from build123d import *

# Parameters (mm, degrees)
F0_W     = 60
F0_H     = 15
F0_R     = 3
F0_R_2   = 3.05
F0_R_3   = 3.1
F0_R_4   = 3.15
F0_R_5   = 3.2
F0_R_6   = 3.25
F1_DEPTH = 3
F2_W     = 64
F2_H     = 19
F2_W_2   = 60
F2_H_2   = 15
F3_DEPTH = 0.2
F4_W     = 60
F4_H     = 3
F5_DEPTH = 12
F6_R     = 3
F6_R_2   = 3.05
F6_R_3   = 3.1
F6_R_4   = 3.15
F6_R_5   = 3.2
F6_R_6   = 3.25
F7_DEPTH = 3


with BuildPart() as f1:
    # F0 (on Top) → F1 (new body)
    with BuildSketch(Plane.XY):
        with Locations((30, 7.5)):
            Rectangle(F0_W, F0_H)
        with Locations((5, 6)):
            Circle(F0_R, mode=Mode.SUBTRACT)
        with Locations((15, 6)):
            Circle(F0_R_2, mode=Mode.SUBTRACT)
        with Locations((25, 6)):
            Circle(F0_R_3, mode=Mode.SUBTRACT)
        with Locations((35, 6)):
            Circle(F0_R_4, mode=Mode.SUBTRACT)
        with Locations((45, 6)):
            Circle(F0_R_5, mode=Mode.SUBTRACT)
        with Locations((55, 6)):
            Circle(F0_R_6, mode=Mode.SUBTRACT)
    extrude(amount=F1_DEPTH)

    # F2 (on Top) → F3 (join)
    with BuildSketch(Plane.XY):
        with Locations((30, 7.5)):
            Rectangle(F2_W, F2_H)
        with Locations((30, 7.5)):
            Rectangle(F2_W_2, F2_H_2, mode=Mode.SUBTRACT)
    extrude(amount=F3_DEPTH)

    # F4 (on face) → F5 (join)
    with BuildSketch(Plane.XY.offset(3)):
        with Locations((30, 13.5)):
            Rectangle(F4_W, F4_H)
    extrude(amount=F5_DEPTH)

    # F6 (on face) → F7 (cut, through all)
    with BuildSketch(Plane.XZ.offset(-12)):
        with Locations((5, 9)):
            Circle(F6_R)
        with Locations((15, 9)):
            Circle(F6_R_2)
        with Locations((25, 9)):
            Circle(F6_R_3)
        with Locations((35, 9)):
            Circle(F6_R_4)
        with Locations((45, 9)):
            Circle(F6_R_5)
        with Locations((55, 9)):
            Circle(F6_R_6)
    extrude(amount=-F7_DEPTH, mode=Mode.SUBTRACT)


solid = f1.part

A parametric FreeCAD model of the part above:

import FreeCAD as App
import Part
import Sketcher

doc = App.newDocument("Part")
body = doc.addObject("PartDesign::Body", "Body")

sketch1 = body.newObject("Sketcher::SketchObject", "Sketch")
sketch1.AttachmentSupport = (doc.getObject("XY_Plane"), [""])
sketch1.MapMode = "FlatFace"
sketch1.addGeometry([
    Part.LineSegment(App.Vector(0, 15, 0), App.Vector(0, 0, 0)),
    Part.LineSegment(App.Vector(0, 0, 0), App.Vector(60, 0, 0)),
    Part.LineSegment(App.Vector(60, 0, 0), App.Vector(60, 15, 0)),
    Part.LineSegment(App.Vector(60, 15, 0), App.Vector(0, 15, 0)),
    Part.Circle(App.Vector(5, 6, 0), App.Vector(0, 0, 1), 3),
    Part.Circle(App.Vector(15, 6, 0), App.Vector(0, 0, 1), 3),
    Part.Circle(App.Vector(25, 6, 0), App.Vector(0, 0, 1), 3.1),
    Part.Circle(App.Vector(35, 6, 0), App.Vector(0, 0, 1), 3.1),
    Part.Circle(App.Vector(45, 6, 0), App.Vector(0, 0, 1), 3.2),
    Part.Circle(App.Vector(55, 6, 0), App.Vector(0, 0, 1), 3.2),
], False)
sketch1.addConstraint([
    Sketcher.Constraint("Coincident", 0, 2, 1, 1),
    Sketcher.Constraint("Coincident", 1, 2, 2, 1),
    Sketcher.Constraint("Coincident", 2, 2, 3, 1),
    Sketcher.Constraint("Coincident", 3, 2, 0, 1),
    Sketcher.Constraint("Vertical", 0),
    Sketcher.Constraint("Horizontal", 1),
    Sketcher.Constraint("Vertical", 2),
    Sketcher.Constraint("Horizontal", 3),
    Sketcher.Constraint("Coincident", 0, 2, -1, 1),
    Sketcher.Constraint("Horizontal", 4, 3, 5, 3),
    Sketcher.Constraint("Horizontal", 5, 3, 6, 3),
    Sketcher.Constraint("Horizontal", 6, 3, 7, 3),
    Sketcher.Constraint("Horizontal", 7, 3, 8, 3),
    Sketcher.Constraint("Horizontal", 8, 3, 9, 3),
    Sketcher.Constraint("Diameter", 4, 6.0),
    Sketcher.Constraint("Diameter", 5, 6.1),
    Sketcher.Constraint("Diameter", 6, 6.2),
    Sketcher.Constraint("Diameter", 7, 6.3),
    Sketcher.Constraint("Diameter", 8, 6.4),
    Sketcher.Constraint("Diameter", 9, 6.5),
    Sketcher.Constraint("DistanceX", 1, 1, 1, 2, 60.0),
    Sketcher.Constraint("DistanceY", 0, 2, 0, 1, 15.0),
    Sketcher.Constraint("DistanceX", -1, 1, 4, 3, 5.0),
    Sketcher.Constraint("DistanceY", -1, 1, 4, 3, 6.0),
    Sketcher.Constraint("DistanceX", -1, 1, 5, 3, 15.0),
    Sketcher.Constraint("DistanceX", -1, 1, 6, 3, 25.0),
    Sketcher.Constraint("DistanceX", -1, 1, 7, 3, 35.0),
    Sketcher.Constraint("DistanceX", -1, 1, 8, 3, 45.0),
    Sketcher.Constraint("DistanceX", -1, 1, 9, 3, 55.0),
])
pad1 = body.newObject("PartDesign::Pad", "Pad")
pad1.Profile = sketch1
pad1.Length = 3

sketch2 = body.newObject("Sketcher::SketchObject", "Sketch001")
sketch2.AttachmentSupport = (doc.getObject("XY_Plane"), [""])
sketch2.MapMode = "FlatFace"
sketch2.addGeometry([
    Part.LineSegment(App.Vector(-2, 17, 0), App.Vector(-2, -2, 0)),
    Part.LineSegment(App.Vector(-2, -2, 0), App.Vector(62, -2, 0)),
    Part.LineSegment(App.Vector(62, -2, 0), App.Vector(62, 17, 0)),
    Part.LineSegment(App.Vector(62, 17, 0), App.Vector(-2, 17, 0)),
    Part.LineSegment(App.Vector(60, 0, 0), App.Vector(0, 0, 0)),
    Part.LineSegment(App.Vector(0, 0, 0), App.Vector(0, 15, 0)),
    Part.LineSegment(App.Vector(0, 15, 0), App.Vector(60, 15, 0)),
    Part.LineSegment(App.Vector(60, 15, 0), App.Vector(60, 0, 0)),
], False)
sketch2.addConstraint([
    Sketcher.Constraint("Coincident", 0, 2, 1, 1),
    Sketcher.Constraint("Coincident", 1, 2, 2, 1),
    Sketcher.Constraint("Coincident", 2, 2, 3, 1),
    Sketcher.Constraint("Coincident", 3, 2, 0, 1),
    Sketcher.Constraint("Coincident", 4, 2, 5, 1),
    Sketcher.Constraint("Coincident", 5, 2, 6, 1),
    Sketcher.Constraint("Coincident", 6, 2, 7, 1),
    Sketcher.Constraint("Coincident", 7, 2, 4, 1),
    Sketcher.Constraint("Vertical", 0),
    Sketcher.Constraint("Horizontal", 1),
    Sketcher.Constraint("Vertical", 2),
    Sketcher.Constraint("Horizontal", 3),
    Sketcher.Constraint("Horizontal", 4),
    Sketcher.Constraint("Vertical", 5),
    Sketcher.Constraint("Horizontal", 6),
    Sketcher.Constraint("Vertical", 7),
    Sketcher.Constraint("Coincident", 4, 2, -1, 1),
    Sketcher.Constraint("DistanceX", 1, 1, 1, 2, 64.0),
    Sketcher.Constraint("DistanceX", 4, 2, 4, 1, 60.0),
    Sketcher.Constraint("DistanceY", 0, 2, 0, 1, 19.0),
    Sketcher.Constraint("DistanceY", 5, 1, 5, 2, 15.0),
    Sketcher.Constraint("DistanceX", 0, 2, -1, 1, 2.0),
    Sketcher.Constraint("DistanceY", 0, 2, -1, 1, 2.0),
])
pad2 = body.newObject("PartDesign::Pad", "Pad001")
pad2.Profile = sketch2
pad2.Length = 0.2

sketch3 = body.newObject("Sketcher::SketchObject", "Sketch002")
sketch3.AttachmentSupport = (doc.getObject("XY_Plane"), [""])
sketch3.MapMode = "FlatFace"
sketch3.AttachmentOffset = App.Placement(App.Vector(0, 0, 3), App.Rotation())
sketch3.addGeometry([
    Part.LineSegment(App.Vector(0, 15, 0), App.Vector(0, 12, 0)),
    Part.LineSegment(App.Vector(0, 12, 0), App.Vector(60, 12, 0)),
    Part.LineSegment(App.Vector(60, 12, 0), App.Vector(60, 15, 0)),
    Part.LineSegment(App.Vector(60, 15, 0), App.Vector(0, 15, 0)),
], False)
sketch3.addConstraint([
    Sketcher.Constraint("Coincident", 0, 2, 1, 1),
    Sketcher.Constraint("Coincident", 1, 2, 2, 1),
    Sketcher.Constraint("Coincident", 2, 2, 3, 1),
    Sketcher.Constraint("Coincident", 3, 2, 0, 1),
    Sketcher.Constraint("Vertical", 0),
    Sketcher.Constraint("Horizontal", 1),
    Sketcher.Constraint("Vertical", 2),
    Sketcher.Constraint("Horizontal", 3),
    Sketcher.Constraint("PointOnObject", 0, 2, -2),
    Sketcher.Constraint("DistanceX", 1, 1, 1, 2, 60.0),
    Sketcher.Constraint("DistanceY", 0, 2, 0, 1, 3.0),
    Sketcher.Constraint("DistanceY", -1, 1, 0, 2, 12.0),
])
pad3 = body.newObject("PartDesign::Pad", "Pad002")
pad3.Profile = sketch3
pad3.Length = 12

sketch4 = body.newObject("Sketcher::SketchObject", "Sketch003")
sketch4.AttachmentSupport = (doc.getObject("XZ_Plane"), [""])
sketch4.MapMode = "FlatFace"
sketch4.AttachmentOffset = App.Placement(App.Vector(0, 0, -12), App.Rotation())
sketch4.addGeometry([
    Part.Circle(App.Vector(5, 9, 0), App.Vector(0, 0, 1), 3),
    Part.Circle(App.Vector(15, 9, 0), App.Vector(0, 0, 1), 3),
    Part.Circle(App.Vector(25, 9, 0), App.Vector(0, 0, 1), 3.1),
    Part.Circle(App.Vector(35, 9, 0), App.Vector(0, 0, 1), 3.1),
    Part.Circle(App.Vector(45, 9, 0), App.Vector(0, 0, 1), 3.2),
    Part.Circle(App.Vector(55, 9, 0), App.Vector(0, 0, 1), 3.2),
], False)
sketch4.addConstraint([
    Sketcher.Constraint("Horizontal", 0, 3, 1, 3),
    Sketcher.Constraint("Horizontal", 1, 3, 2, 3),
    Sketcher.Constraint("Horizontal", 2, 3, 3, 3),
    Sketcher.Constraint("Horizontal", 3, 3, 4, 3),
    Sketcher.Constraint("Horizontal", 4, 3, 5, 3),
    Sketcher.Constraint("Diameter", 0, 6.0),
    Sketcher.Constraint("Diameter", 1, 6.1),
    Sketcher.Constraint("Diameter", 2, 6.2),
    Sketcher.Constraint("Diameter", 3, 6.3),
    Sketcher.Constraint("Diameter", 4, 6.4),
    Sketcher.Constraint("Diameter", 5, 6.5),
    Sketcher.Constraint("DistanceX", -1, 1, 0, 3, 5.0),
    Sketcher.Constraint("DistanceY", -1, 1, 0, 3, 9.0),
    Sketcher.Constraint("DistanceX", -1, 1, 1, 3, 15.0),
    Sketcher.Constraint("DistanceX", -1, 1, 2, 3, 25.0),
    Sketcher.Constraint("DistanceX", -1, 1, 3, 3, 35.0),
    Sketcher.Constraint("DistanceX", -1, 1, 4, 3, 45.0),
    Sketcher.Constraint("DistanceX", -1, 1, 5, 3, 55.0),
])
pocket1 = body.newObject("PartDesign::Pocket", "Pocket")
pocket1.Profile = sketch4
pocket1.Type = "ThroughAll"

doc.recompute()
